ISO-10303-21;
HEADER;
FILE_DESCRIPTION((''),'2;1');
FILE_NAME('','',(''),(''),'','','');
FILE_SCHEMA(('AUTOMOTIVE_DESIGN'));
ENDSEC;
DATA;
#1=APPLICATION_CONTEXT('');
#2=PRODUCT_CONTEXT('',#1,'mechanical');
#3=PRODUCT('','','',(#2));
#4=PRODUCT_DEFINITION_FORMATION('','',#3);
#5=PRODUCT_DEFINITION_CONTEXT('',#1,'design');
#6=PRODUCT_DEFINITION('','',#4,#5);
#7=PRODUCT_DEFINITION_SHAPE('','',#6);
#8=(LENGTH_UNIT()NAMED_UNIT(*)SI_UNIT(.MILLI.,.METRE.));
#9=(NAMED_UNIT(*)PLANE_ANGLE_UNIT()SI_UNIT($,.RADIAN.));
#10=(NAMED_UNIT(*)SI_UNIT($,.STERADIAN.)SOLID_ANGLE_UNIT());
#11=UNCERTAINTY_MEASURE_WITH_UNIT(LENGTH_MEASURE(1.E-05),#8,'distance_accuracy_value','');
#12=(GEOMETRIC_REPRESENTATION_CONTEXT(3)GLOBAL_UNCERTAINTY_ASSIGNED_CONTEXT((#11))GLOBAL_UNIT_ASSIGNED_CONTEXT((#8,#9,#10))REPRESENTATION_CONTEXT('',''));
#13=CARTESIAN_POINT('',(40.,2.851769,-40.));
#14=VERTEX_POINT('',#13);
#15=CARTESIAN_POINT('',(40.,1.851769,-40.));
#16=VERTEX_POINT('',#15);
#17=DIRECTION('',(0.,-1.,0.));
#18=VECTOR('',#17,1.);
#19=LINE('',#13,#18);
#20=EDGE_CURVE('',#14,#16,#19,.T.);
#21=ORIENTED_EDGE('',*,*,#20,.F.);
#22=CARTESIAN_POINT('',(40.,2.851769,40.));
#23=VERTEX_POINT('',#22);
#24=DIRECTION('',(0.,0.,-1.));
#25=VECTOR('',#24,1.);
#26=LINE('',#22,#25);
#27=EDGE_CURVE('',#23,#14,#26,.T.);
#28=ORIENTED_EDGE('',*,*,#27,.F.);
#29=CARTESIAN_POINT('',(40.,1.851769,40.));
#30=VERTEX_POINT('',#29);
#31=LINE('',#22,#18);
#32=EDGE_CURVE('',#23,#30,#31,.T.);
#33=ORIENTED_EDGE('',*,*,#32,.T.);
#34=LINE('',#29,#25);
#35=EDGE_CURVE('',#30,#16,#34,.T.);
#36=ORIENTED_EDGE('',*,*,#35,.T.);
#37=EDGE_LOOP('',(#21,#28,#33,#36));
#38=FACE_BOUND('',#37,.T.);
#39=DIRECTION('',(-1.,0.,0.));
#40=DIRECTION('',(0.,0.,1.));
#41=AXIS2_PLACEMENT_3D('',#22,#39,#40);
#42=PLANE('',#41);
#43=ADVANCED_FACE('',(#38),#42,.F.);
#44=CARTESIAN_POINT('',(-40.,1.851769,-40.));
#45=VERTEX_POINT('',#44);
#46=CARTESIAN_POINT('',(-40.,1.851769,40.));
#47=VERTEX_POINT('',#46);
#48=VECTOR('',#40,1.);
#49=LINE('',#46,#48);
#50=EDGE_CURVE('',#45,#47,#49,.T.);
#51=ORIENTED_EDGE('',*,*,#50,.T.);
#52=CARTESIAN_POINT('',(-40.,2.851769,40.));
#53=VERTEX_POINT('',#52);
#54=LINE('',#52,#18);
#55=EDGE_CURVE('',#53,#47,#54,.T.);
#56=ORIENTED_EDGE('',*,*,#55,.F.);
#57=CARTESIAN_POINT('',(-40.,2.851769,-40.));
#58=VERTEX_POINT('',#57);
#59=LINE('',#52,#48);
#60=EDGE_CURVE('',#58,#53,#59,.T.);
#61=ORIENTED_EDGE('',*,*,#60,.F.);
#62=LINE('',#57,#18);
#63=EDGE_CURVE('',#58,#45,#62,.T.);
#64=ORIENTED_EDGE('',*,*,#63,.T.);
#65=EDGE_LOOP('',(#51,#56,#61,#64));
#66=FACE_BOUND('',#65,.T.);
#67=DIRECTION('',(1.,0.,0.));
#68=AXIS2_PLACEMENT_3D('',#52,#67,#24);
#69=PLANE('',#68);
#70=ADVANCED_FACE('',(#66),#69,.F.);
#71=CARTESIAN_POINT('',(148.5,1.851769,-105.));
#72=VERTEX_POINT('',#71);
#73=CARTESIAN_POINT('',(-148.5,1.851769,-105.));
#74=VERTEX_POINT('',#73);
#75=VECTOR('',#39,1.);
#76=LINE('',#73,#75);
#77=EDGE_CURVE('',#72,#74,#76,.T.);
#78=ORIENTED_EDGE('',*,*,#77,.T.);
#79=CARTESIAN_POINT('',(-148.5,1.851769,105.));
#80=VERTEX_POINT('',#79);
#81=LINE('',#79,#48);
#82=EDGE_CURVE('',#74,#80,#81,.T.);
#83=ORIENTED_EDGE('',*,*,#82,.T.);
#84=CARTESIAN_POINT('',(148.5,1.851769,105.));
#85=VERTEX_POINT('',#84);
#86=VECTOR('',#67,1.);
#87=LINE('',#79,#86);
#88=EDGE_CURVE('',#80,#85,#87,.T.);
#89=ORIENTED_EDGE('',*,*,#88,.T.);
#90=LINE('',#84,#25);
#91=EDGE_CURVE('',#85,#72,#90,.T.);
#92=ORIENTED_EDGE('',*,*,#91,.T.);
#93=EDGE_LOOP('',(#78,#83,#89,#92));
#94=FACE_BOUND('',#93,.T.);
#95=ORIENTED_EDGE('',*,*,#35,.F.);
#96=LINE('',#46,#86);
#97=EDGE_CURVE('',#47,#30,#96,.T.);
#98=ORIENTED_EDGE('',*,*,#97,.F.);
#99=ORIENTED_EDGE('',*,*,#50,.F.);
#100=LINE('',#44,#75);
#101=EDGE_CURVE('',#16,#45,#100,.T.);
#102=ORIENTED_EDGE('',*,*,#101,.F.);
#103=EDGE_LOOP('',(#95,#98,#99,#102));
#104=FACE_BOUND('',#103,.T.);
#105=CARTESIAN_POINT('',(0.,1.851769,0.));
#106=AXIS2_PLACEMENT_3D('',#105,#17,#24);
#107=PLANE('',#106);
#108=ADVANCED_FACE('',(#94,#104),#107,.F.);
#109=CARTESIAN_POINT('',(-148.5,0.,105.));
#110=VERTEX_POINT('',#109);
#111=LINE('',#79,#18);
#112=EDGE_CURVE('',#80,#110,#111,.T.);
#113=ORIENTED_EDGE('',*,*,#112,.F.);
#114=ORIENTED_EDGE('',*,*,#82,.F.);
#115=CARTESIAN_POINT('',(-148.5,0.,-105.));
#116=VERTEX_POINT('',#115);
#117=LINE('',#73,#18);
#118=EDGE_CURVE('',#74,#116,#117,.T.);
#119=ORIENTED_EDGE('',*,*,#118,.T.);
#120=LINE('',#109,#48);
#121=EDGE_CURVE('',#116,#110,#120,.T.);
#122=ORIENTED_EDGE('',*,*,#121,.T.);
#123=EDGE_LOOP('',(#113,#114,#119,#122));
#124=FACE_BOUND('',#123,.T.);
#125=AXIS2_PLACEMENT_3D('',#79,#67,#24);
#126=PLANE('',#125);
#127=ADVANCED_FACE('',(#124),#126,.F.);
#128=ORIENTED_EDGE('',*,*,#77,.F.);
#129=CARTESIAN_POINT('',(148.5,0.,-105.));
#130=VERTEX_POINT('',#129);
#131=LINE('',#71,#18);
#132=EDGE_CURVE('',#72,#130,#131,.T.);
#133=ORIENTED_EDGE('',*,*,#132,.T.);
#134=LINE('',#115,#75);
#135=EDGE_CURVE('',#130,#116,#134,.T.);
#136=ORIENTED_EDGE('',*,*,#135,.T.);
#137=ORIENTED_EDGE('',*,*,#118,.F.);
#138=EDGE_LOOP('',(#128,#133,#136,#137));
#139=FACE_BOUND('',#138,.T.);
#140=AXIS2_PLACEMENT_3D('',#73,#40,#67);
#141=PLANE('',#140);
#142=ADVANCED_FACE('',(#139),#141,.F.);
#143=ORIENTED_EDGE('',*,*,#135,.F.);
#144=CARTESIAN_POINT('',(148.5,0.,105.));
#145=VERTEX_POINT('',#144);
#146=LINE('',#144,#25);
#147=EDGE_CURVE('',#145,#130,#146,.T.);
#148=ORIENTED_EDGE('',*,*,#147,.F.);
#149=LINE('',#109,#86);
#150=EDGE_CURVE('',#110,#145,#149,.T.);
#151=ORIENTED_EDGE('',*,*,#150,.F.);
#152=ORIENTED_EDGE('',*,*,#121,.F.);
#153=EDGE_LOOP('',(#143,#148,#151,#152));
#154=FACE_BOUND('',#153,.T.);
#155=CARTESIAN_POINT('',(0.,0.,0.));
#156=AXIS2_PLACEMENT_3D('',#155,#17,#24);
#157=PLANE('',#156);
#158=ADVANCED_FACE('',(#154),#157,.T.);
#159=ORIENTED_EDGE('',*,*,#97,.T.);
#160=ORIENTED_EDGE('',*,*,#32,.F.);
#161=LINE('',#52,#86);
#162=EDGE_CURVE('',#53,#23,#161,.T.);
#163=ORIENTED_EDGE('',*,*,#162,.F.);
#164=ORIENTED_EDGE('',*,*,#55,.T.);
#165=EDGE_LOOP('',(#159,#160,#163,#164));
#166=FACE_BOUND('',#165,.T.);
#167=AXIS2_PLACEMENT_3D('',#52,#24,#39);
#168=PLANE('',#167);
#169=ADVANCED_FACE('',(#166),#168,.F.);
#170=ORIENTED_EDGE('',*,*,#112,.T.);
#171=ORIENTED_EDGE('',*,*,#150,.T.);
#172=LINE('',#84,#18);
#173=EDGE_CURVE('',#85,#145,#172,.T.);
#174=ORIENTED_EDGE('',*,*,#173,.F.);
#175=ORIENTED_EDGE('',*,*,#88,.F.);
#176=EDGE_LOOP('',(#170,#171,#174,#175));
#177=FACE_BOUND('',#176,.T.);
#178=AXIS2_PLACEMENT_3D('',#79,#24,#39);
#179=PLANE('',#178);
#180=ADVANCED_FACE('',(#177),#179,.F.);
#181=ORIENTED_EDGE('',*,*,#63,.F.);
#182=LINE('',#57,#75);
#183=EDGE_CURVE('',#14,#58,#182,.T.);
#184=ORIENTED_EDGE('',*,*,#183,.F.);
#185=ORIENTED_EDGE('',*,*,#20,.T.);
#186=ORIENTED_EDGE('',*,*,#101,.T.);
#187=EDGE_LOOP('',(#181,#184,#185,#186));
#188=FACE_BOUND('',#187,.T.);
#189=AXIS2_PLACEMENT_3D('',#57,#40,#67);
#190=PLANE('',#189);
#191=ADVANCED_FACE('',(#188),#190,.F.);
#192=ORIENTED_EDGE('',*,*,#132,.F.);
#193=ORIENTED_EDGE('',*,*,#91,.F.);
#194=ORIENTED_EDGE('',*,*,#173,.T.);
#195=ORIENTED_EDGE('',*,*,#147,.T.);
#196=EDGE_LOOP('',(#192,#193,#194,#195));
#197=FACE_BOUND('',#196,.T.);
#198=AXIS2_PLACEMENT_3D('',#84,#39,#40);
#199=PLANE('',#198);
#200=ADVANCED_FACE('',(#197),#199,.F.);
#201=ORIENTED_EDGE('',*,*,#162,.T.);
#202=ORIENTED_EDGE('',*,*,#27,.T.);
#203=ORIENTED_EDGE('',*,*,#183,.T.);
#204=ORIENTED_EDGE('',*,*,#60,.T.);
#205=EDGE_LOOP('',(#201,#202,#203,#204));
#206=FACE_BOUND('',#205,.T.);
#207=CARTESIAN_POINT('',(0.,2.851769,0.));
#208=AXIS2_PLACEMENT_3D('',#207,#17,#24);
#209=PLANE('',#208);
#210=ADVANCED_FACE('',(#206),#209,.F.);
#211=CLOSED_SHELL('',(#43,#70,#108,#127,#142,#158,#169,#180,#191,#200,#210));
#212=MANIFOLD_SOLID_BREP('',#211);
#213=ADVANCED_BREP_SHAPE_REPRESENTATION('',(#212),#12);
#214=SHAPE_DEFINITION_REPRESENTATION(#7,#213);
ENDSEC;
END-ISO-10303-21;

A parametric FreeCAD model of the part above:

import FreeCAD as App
import Part
import Sketcher

V = App.Vector

doc = App.newDocument("Part")
params = doc.addObject("Spreadsheet::Sheet", "Params")
for row, (alias, value) in enumerate([
    ("sketch1_width", "297 mm"),
    ("sketch1_height", "210 mm"),
    ("pad1_length", "1.851769 mm"),
    ("sketch2_width", "80 mm"),
    ("pad2_length", "1 mm"),
], start=1):
    params.set(f"A{row}", alias)
    params.set(f"B{row}", "=" + value)
    params.setAlias(f"B{row}", alias)

body = doc.addObject("PartDesign::Body", "Body")

# Sketch on XZ plane
sketch1 = doc.addObject("Sketcher::SketchObject", "Sketch")
body.addObject(sketch1)
sketch1.AttachmentSupport = (doc.XZ_Plane, [""])
sketch1.MapMode = "FlatFace"
sketch1.addGeometry([
    Part.LineSegment(V(-148, -105, 0), V(-148, 105, 0)),
    Part.LineSegment(V(-148, 105, 0), V(148, 105, 0)),
    Part.LineSegment(V(148, 105, 0), V(148, -105, 0)),
    Part.LineSegment(V(148, -105, 0), V(-148, -105, 0)),
], False)
sketch1.addConstraint([
    Sketcher.Constraint("Coincident", 0, 2, 1, 1),
    Sketcher.Constraint("Coincident", 1, 2, 2, 1),
    Sketcher.Constraint("Coincident", 2, 2, 3, 1),
    Sketcher.Constraint("Coincident", 3, 2, 0, 1),
    Sketcher.Constraint("Vertical", 0),
    Sketcher.Constraint("Horizontal", 1),
    Sketcher.Constraint("Vertical", 2),
    Sketcher.Constraint("Horizontal", 3),
    Sketcher.Constraint("Symmetric", 0, 2, 2, 2, -1, 1),
    Sketcher.Constraint("DistanceX", 1, 1, 1, 2, 297.0),
    Sketcher.Constraint("DistanceY", 0, 1, 0, 2, 210.0),
])
sketch1.setExpression("Constraints[9]", "Params.sketch1_width")
sketch1.setExpression("Constraints[10]", "Params.sketch1_height")
pad1 = doc.addObject("PartDesign::Pad", "Pad")
body.addObject(pad1)
pad1.Profile = sketch1
pad1.setExpression("Length", "Params.pad1_length")
pad1.Reversed = True

# Sketch on XZ plane
sketch2 = doc.addObject("Sketcher::SketchObject", "Sketch001")
body.addObject(sketch2)
sketch2.AttachmentSupport = (doc.XZ_Plane, [""])
sketch2.MapMode = "FlatFace"
sketch2.AttachmentOffset = App.Placement(V(0, 0, -1.851769), App.Rotation())
sketch2.addGeometry([
    Part.LineSegment(V(-40, -40, 0), V(-40, 40, 0)),
    Part.LineSegment(V(-40, 40, 0), V(40, 40, 0)),
    Part.LineSegment(V(40, 40, 0), V(40, -40, 0)),
    Part.LineSegment(V(40, -40, 0), V(-40, -40, 0)),
], False)
sketch2.addConstraint([
    Sketcher.Constraint("Coincident", 0, 2, 1, 1),
    Sketcher.Constraint("Coincident", 1, 2, 2, 1),
    Sketcher.Constraint("Coincident", 2, 2, 3, 1),
    Sketcher.Constraint("Coincident", 3, 2, 0, 1),
    Sketcher.Constraint("Vertical", 0),
    Sketcher.Constraint("Horizontal", 1),
    Sketcher.Constraint("Vertical", 2),
    Sketcher.Constraint("Horizontal", 3),
    Sketcher.Constraint("Symmetric", 0, 2, 2, 2, -1, 1),
    Sketcher.Constraint("Equal", 3, 0),
    Sketcher.Constraint("DistanceX", 1, 1, 1, 2, 80.0),
])
sketch2.setExpression("Constraints[10]", "Params.sketch2_width")
pad2 = doc.addObject("PartDesign::Pad", "Pad001")
body.addObject(pad2)
pad2.Profile = sketch2
pad2.setExpression("Length", "Params.pad2_length")
pad2.Reversed = True

doc.recompute()
